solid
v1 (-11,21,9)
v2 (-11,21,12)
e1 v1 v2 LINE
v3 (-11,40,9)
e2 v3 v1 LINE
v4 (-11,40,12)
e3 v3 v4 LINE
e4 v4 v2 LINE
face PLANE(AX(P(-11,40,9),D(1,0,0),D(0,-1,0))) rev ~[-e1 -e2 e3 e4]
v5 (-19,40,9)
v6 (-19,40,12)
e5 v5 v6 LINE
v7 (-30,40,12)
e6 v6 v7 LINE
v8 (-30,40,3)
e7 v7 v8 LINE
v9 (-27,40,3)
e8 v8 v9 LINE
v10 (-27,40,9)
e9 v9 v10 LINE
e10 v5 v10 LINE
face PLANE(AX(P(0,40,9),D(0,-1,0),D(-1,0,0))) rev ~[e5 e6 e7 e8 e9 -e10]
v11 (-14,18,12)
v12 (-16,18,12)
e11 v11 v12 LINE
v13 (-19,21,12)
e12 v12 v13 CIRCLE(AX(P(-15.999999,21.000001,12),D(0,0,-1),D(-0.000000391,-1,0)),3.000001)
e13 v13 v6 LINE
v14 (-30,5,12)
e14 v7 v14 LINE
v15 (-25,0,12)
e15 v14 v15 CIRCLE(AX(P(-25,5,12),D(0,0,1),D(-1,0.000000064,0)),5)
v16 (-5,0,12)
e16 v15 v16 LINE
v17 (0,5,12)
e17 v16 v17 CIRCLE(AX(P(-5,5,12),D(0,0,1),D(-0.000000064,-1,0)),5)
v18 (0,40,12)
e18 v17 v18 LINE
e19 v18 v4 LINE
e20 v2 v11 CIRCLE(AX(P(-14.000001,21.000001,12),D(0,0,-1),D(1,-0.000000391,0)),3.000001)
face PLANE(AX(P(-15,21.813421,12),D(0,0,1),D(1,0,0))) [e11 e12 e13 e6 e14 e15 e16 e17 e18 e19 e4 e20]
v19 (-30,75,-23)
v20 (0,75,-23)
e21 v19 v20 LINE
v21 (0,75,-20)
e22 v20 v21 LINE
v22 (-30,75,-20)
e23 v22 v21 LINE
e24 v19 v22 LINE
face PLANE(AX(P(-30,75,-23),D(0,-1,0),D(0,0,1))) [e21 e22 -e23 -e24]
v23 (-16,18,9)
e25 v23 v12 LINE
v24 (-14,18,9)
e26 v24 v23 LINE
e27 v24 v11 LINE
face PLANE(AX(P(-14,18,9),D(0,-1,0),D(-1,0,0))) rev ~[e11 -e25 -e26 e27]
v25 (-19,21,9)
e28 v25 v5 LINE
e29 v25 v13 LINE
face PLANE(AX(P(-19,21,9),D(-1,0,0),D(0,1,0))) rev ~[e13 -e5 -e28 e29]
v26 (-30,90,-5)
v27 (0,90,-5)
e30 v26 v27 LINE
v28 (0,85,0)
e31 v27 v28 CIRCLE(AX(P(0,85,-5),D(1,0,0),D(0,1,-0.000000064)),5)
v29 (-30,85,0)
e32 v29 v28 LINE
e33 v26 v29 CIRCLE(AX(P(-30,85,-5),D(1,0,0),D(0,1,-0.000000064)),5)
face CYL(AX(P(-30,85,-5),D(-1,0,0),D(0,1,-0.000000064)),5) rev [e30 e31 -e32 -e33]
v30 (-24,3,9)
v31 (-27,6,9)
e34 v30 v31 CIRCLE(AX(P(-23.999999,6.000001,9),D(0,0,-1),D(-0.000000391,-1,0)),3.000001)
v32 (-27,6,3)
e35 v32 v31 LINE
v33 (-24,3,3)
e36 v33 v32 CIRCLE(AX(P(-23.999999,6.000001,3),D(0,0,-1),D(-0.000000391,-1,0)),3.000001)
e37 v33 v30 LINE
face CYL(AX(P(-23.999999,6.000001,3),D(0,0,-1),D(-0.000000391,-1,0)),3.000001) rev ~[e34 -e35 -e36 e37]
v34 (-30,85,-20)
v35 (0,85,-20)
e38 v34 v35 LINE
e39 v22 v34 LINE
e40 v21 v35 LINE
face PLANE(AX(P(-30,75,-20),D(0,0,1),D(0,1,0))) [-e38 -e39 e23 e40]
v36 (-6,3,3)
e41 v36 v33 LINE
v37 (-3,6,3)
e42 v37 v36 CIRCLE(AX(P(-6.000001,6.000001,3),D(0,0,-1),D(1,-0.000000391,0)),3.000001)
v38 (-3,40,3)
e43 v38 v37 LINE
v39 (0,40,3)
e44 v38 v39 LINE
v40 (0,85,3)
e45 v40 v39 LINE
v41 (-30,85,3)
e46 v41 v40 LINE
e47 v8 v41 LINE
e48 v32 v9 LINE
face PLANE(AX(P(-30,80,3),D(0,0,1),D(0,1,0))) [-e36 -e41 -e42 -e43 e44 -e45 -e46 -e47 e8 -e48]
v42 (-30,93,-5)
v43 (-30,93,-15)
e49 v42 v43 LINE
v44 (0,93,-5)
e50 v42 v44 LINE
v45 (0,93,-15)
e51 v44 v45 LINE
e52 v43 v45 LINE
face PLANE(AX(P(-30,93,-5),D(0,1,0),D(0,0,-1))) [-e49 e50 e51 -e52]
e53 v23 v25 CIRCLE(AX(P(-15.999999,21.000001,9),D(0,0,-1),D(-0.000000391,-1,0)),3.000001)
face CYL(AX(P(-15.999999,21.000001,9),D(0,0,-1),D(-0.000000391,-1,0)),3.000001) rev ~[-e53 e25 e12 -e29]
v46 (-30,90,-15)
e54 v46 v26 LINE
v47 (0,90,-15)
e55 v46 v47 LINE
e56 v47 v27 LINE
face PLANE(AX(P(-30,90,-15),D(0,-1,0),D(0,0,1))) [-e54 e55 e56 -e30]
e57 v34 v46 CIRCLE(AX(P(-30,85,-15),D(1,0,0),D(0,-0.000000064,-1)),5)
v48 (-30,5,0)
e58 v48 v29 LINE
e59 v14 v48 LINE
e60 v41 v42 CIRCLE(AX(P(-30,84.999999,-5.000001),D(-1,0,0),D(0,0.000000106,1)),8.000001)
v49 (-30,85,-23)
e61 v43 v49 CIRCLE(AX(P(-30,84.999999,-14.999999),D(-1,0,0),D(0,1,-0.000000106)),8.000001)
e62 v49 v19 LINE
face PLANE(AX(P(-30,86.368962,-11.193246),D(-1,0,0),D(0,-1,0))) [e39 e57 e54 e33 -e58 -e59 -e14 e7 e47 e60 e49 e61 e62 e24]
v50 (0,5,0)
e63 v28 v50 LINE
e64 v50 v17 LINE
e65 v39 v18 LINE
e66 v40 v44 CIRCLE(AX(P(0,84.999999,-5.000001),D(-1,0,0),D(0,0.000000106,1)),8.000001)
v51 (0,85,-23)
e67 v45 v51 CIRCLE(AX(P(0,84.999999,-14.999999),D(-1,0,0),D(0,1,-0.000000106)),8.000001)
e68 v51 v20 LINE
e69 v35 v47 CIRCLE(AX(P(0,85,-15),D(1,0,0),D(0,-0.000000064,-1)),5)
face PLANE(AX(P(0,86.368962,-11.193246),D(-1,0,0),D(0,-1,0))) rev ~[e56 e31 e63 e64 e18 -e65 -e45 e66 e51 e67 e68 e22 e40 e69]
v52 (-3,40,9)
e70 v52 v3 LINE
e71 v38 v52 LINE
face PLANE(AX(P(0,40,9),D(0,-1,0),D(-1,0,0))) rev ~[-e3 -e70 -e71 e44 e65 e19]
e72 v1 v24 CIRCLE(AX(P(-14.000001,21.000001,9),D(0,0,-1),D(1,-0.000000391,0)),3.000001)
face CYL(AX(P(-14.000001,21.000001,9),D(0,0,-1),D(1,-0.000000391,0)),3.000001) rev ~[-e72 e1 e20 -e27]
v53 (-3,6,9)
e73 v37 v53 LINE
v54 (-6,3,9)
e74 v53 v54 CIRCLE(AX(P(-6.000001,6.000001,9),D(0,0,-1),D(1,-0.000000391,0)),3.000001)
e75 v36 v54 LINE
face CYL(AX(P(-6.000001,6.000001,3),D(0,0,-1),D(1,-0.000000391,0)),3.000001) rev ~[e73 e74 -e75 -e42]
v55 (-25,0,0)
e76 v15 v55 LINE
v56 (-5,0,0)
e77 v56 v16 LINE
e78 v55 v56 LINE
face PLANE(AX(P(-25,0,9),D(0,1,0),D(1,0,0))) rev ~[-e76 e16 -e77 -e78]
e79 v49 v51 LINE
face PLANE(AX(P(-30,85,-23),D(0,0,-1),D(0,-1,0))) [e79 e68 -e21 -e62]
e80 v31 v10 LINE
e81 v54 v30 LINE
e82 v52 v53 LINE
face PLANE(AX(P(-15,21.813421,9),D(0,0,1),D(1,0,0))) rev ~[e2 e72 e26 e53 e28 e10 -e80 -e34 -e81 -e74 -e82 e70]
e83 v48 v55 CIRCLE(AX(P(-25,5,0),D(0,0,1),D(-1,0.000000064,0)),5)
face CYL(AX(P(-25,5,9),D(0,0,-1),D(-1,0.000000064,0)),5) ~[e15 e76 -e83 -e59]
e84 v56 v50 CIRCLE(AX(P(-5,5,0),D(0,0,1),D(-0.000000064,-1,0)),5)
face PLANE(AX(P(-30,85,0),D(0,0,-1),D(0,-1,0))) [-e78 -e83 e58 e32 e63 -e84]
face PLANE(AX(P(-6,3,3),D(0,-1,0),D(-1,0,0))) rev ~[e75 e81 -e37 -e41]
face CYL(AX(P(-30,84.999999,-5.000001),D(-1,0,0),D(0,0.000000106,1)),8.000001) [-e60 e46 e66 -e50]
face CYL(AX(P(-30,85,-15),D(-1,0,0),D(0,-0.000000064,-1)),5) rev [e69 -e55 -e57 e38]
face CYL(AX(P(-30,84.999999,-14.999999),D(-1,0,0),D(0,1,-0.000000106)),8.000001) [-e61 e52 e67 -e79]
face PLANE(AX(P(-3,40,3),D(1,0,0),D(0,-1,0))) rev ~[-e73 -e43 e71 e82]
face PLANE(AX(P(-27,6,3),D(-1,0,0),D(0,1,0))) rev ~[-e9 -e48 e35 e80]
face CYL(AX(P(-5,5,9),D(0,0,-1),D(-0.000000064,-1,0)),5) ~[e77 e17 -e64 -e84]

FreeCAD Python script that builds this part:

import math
import FreeCAD as App
import Part
import Sketcher
Q = App.Units.Quantity


def add_polygon(sketch, points):
    """Adds a closed chain of lines whose ends are joined by coincident constraints."""
    first, n = sketch.GeometryCount, len(points)
    for a, b in zip(points, points[1:] + points[:1]):
        sketch.addGeometry(Part.LineSegment(App.Vector(*a, 0), App.Vector(*b, 0)), False)
    for i in range(n):
        sketch.addConstraint(Sketcher.Constraint("Coincident", first + i, 2, first + (i + 1) % n, 1))

doc = App.newDocument("Part")
body = doc.addObject("PartDesign::Body", "Body")

# Sketch on XY plane
sketch1 = doc.addObject("Sketcher::SketchObject", "Sketch")
body.addObject(sketch1)
sketch1.AttachmentSupport = (doc.XY_Plane, [""])
sketch1.MapMode = "FlatFace"
sketch1.addGeometry([
    Part.LineSegment(App.Vector(-25, 0, 0), App.Vector(-5, 0, 0)),  # 0
    Part.ArcOfCircle(Part.Circle(App.Vector(-5, 5, 0), App.Vector(0, 0, 1), 5), math.radians(-90), math.radians(0)),  # 1
    Part.LineSegment(App.Vector(0, 5, 0), App.Vector(0, 40, 0)),  # 2
    Part.LineSegment(App.Vector(0, 40, 0), App.Vector(-30, 40, 0)),  # 3
    Part.LineSegment(App.Vector(-30, 40, 0), App.Vector(-30, 5, 0)),  # 4
    Part.ArcOfCircle(Part.Circle(App.Vector(-25, 5, 0), App.Vector(0, 0, 1), 5), math.radians(180), math.radians(270)),  # 5
], False)
sketch1.addConstraint([
    Sketcher.Constraint("Tangent", 0, 2, 1, 1),
    Sketcher.Constraint("Tangent", 1, 2, 2, 1),
    Sketcher.Constraint("Coincident", 2, 2, 3, 1),
    Sketcher.Constraint("Coincident", 3, 2, 4, 1),
    Sketcher.Constraint("Tangent", 4, 2, 5, 1),
    Sketcher.Constraint("Tangent", 5, 2, 0, 1),
    Sketcher.Constraint("Horizontal", 0),
    Sketcher.Constraint("Vertical", 2),
    Sketcher.Constraint("Horizontal", 3),
    Sketcher.Constraint("Vertical", 4),
    Sketcher.Constraint("Equal", 1, 5),
    Sketcher.Constraint("PointOnObject", 0, 2, -1),
    Sketcher.Constraint("PointOnObject", 1, 2, -2),
    Sketcher.Constraint("Radius", 1, Q("5 mm")),
    Sketcher.Constraint("DistanceX", 0, 1, 0, 2, Q("20 mm")),
    Sketcher.Constraint("DistanceY", 2, 1, 2, 2, Q("35 mm")),
])
pad1 = doc.addObject("PartDesign::Pad", "Pad")
body.addObject(pad1)
pad1.Profile = sketch1
pad1.Length = 3

# Sketch on XY plane
sketch2 = doc.addObject("Sketcher::SketchObject", "Sketch001")
body.addObject(sketch2)
sketch2.AttachmentSupport = (doc.XY_Plane, [""])
sketch2.MapMode = "FlatFace"
sketch2.AttachmentOffset = App.Placement(App.Vector(0, 0, 3), App.Rotation())
sketch2.addGeometry([
    Part.ArcOfCircle(Part.Circle(App.Vector(-24, 6, 0), App.Vector(0, 0, 1), 3), math.radians(-180), math.radians(-90)),  # 0
    Part.LineSegment(App.Vector(-27, 6, 0), App.Vector(-27, 40, 0)),  # 1
    Part.LineSegment(App.Vector(-27, 40, 0), App.Vector(-30, 40, 0)),  # 2
    Part.LineSegment(App.Vector(-30, 40, 0), App.Vector(-30, 5, 0)),  # 3
    Part.ArcOfCircle(Part.Circle(App.Vector(-25, 5, 0), App.Vector(0, 0, 1), 5), math.radians(180), math.radians(270)),  # 4
    Part.LineSegment(App.Vector(-25, 0, 0), App.Vector(-5, 0, 0)),  # 5
    Part.ArcOfCircle(Part.Circle(App.Vector(-5, 5, 0), App.Vector(0, 0, 1), 5), math.radians(-90), math.radians(0)),  # 6
    Part.LineSegment(App.Vector(0, 5, 0), App.Vector(0, 40, 0)),  # 7
    Part.LineSegment(App.Vector(0, 40, 0), App.Vector(-3, 40, 0)),  # 8
    Part.LineSegment(App.Vector(-3, 40, 0), App.Vector(-3, 6, 0)),  # 9
    Part.ArcOfCircle(Part.Circle(App.Vector(-6, 6, 0), App.Vector(0, 0, 1), 3), math.radians(-90), math.radians(0)),  # 10
    Part.LineSegment(App.Vector(-6, 3, 0), App.Vector(-24, 3, 0)),  # 11
], False)
sketch2.addConstraint([
    Sketcher.Constraint("Tangent", 0, 1, 1, 1),
    Sketcher.Constraint("Coincident", 1, 2, 2, 1),
    Sketcher.Constraint("Coincident", 2, 2, 3, 1),
    Sketcher.Constraint("Tangent", 3, 2, 4, 1),
    Sketcher.Constraint("Tangent", 4, 2, 5, 1),
    Sketcher.Constraint("Tangent", 5, 2, 6, 1),
    Sketcher.Constraint("Tangent", 6, 2, 7, 1),
    Sketcher.Constraint("Coincident", 7, 2, 8, 1),
    Sketcher.Constraint("Coincident", 8, 2, 9, 1),
    Sketcher.Constraint("Tangent", 9, 2, 10, 2),
    Sketcher.Constraint("Tangent", 10, 1, 11, 1),
    Sketcher.Constraint("Tangent", 11, 2, 0, 2),
    Sketcher.Constraint("Vertical", 1),
    Sketcher.Constraint("Horizontal", 2),
    Sketcher.Constraint("Vertical", 3),
    Sketcher.Constraint("Horizontal", 5),
    Sketcher.Constraint("Vertical", 7),
    Sketcher.Constraint("Horizontal", 8),
    Sketcher.Constraint("Vertical", 9),
    Sketcher.Constraint("Horizontal", 11),
    Sketcher.Constraint("Equal", 4, 6),
    Sketcher.Constraint("Equal", 0, 10),
    Sketcher.Constraint("PointOnObject", 4, 2, -1),
    Sketcher.Constraint("PointOnObject", 6, 2, -2),
    Sketcher.Constraint("Horizontal", 2, 2, 7, 2),
    Sketcher.Constraint("Equal", 2, 8),
    Sketcher.Constraint("Radius", 0, Q("3.000001 mm")),
    Sketcher.Constraint("Radius", 4, Q("5 mm")),
    Sketcher.Constraint("DistanceX", 2, 2, 2, 1, Q("3 mm")),
    Sketcher.Constraint("DistanceX", 5, 1, 5, 2, Q("20 mm")),
    Sketcher.Constraint("DistanceY", 1, 1, 1, 2, Q("34 mm")),
    Sketcher.Constraint("DistanceY", 3, 2, 3, 1, Q("35 mm")),
])
pad2 = doc.addObject("PartDesign::Pad", "Pad001")
body.addObject(pad2)
pad2.Profile = sketch2
pad2.Length = 6

# Sketch on XY plane
sketch3 = doc.addObject("Sketcher::SketchObject", "Sketch002")
body.addObject(sketch3)
sketch3.AttachmentSupport = (doc.XY_Plane, [""])
sketch3.MapMode = "FlatFace"
sketch3.AttachmentOffset = App.Placement(App.Vector(0, 0, 9), App.Rotation())
sketch3.addGeometry([
    Part.LineSegment(App.Vector(-25, 0, 0), App.Vector(-5, 0, 0)),  # 0
    Part.ArcOfCircle(Part.Circle(App.Vector(-5, 5, 0), App.Vector(0, 0, 1), 5), math.radians(-90), math.radians(0)),  # 1
    Part.LineSegment(App.Vector(0, 5, 0), App.Vector(0, 40, 0)),  # 2
    Part.LineSegment(App.Vector(0, 40, 0), App.Vector(-11, 40, 0)),  # 3
    Part.LineSegment(App.Vector(-11, 40, 0), App.Vector(-11, 21, 0)),  # 4
    Part.ArcOfCircle(Part.Circle(App.Vector(-14, 21, 0), App.Vector(0, 0, 1), 3), math.radians(-90), math.radians(0)),  # 5
    Part.LineSegment(App.Vector(-14, 18, 0), App.Vector(-16, 18, 0)),  # 6
    Part.ArcOfCircle(Part.Circle(App.Vector(-16, 21, 0), App.Vector(0, 0, 1), 3), math.radians(-180), math.radians(-90)),  # 7
    Part.LineSegment(App.Vector(-19, 21, 0), App.Vector(-19, 40, 0)),  # 8
    Part.LineSegment(App.Vector(-19, 40, 0), App.Vector(-30, 40, 0)),  # 9
    Part.LineSegment(App.Vector(-30, 40, 0), App.Vector(-30, 5, 0)),  # 10
    Part.ArcOfCircle(Part.Circle(App.Vector(-25, 5, 0), App.Vector(0, 0, 1), 5), math.radians(180), math.radians(270)),  # 11
], False)
sketch3.addConstraint([
    Sketcher.Constraint("Tangent", 0, 2, 1, 1),
    Sketcher.Constraint("Tangent", 1, 2, 2, 1),
    Sketcher.Constraint("Coincident", 2, 2, 3, 1),
    Sketcher.Constraint("Coincident", 3, 2, 4, 1),
    Sketcher.Constraint("Tangent", 4, 2, 5, 2),
    Sketcher.Constraint("Tangent", 5, 1, 6, 1),
    Sketcher.Constraint("Tangent", 6, 2, 7, 2),
    Sketcher.Constraint("Tangent", 7, 1, 8, 1),
    Sketcher.Constraint("Coincident", 8, 2, 9, 1),
    Sketcher.Constraint("Coincident", 9, 2, 10, 1),
    Sketcher.Constraint("Tangent", 10, 2, 11, 1),
    Sketcher.Constraint("Tangent", 11, 2, 0, 1),
    Sketcher.Constraint("Horizontal", 0),
    Sketcher.Constraint("Vertical", 2),
    Sketcher.Constraint("Horizontal", 3),
    Sketcher.Constraint("Vertical", 4),
    Sketcher.Constraint("Horizontal", 6),
    Sketcher.Constraint("Vertical", 8),
    Sketcher.Constraint("Horizontal", 9),
    Sketcher.Constraint("Vertical", 10),
    Sketcher.Constraint("Equal", 5, 7),
    Sketcher.Constraint("Equal", 1, 11),
    Sketcher.Constraint("PointOnObject", 0, 2, -1),
    Sketcher.Constraint("PointOnObject", 1, 2, -2),
    Sketcher.Constraint("Horizontal", 3, 2, 8, 2),
    Sketcher.Constraint("Equal", 3, 9),
    Sketcher.Constraint("Radius", 1, Q("5 mm")),
    Sketcher.Constraint("Radius", 5, Q("3.000001 mm")),
    Sketcher.Constraint("DistanceX", 0, 1, 0, 2, Q("20 mm")),
    Sketcher.Constraint("DistanceX", 3, 2, 3, 1, Q("11 mm")),
    Sketcher.Constraint("DistanceY", 2, 1, 2, 2, Q("35 mm")),
    Sketcher.Constraint("DistanceY", 4, 2, 4, 1, Q("19 mm")),
])
pad3 = doc.addObject("PartDesign::Pad", "Pad002")
body.addObject(pad3)
pad3.Profile = sketch3
pad3.Length = 3

# Sketch on XZ plane
sketch4 = doc.addObject("Sketcher::SketchObject", "Sketch003")
body.addObject(sketch4)
sketch4.AttachmentSupport = (doc.XZ_Plane, [""])
sketch4.MapMode = "FlatFace"
sketch4.AttachmentOffset = App.Placement(App.Vector(0, 0, -40), App.Rotation())
add_polygon(sketch4, [(0, 0), (-30, 0), (-30, 3), (0, 3)])  # lines 0-3
sketch4.addConstraint([
    Sketcher.Constraint("Horizontal", 0),
    Sketcher.Constraint("Vertical", 1),
    Sketcher.Constraint("Horizontal", 2),
    Sketcher.Constraint("Vertical", 3),
    Sketcher.Constraint("Coincident", 3, 2, -1, 1),
    Sketcher.Constraint("DistanceX", 0, 2, 0, 1, Q("30 mm")),
    Sketcher.Constraint("DistanceY", 1, 1, 1, 2, Q("3 mm")),
])
pad4 = doc.addObject("PartDesign::Pad", "Pad003")
body.addObject(pad4)
pad4.Profile = sketch4
pad4.Length = 40
pad4.Reversed = True

# Sketch on YZ plane
sketch5 = doc.addObject("Sketcher::SketchObject", "Sketch004")
body.addObject(sketch5)
sketch5.AttachmentSupport = (doc.YZ_Plane, [""])
sketch5.MapMode = "FlatFace"
sketch5.AttachmentOffset = App.Placement(App.Vector(0, 0, -30), App.Rotation())
sketch5.addGeometry([
    Part.LineSegment(App.Vector(85, 0, 0), App.Vector(80, 0, 0)),  # 0
    Part.LineSegment(App.Vector(80, 0, 0), App.Vector(80, 3, 0)),  # 1
    Part.LineSegment(App.Vector(80, 3, 0), App.Vector(85, 3, 0)),  # 2
    Part.ArcOfCircle(Part.Circle(App.Vector(85, -5, 0), App.Vector(0, 0, 1), 8), math.radians(0), math.radians(90)),  # 3
    Part.LineSegment(App.Vector(93, -5, 0), App.Vector(93, -15, 0)),  # 4
    Part.ArcOfCircle(Part.Circle(App.Vector(85, -15, 0), App.Vector(0, 0, 1), 8), math.radians(-90), math.radians(0)),  # 5
    Part.LineSegment(App.Vector(85, -23, 0), App.Vector(75, -23, 0)),  # 6
    Part.LineSegment(App.Vector(75, -23, 0), App.Vector(75, -20, 0)),  # 7
    Part.LineSegment(App.Vector(75, -20, 0), App.Vector(85, -20, 0)),  # 8
    Part.ArcOfCircle(Part.Circle(App.Vector(85, -15, 0), App.Vector(0, 0, 1), 5), math.radians(-90), math.radians(0)),  # 9
    Part.LineSegment(App.Vector(90, -15, 0), App.Vector(90, -5, 0)),  # 10
    Part.ArcOfCircle(Part.Circle(App.Vector(85, -5, 0), App.Vector(0, 0, 1), 5), math.radians(0), math.radians(90)),  # 11
], False)
sketch5.addConstraint([
    Sketcher.Constraint("Coincident", 0, 2, 1, 1),
    Sketcher.Constraint("Coincident", 1, 2, 2, 1),
    Sketcher.Constraint("Tangent", 2, 2, 3, 2),
    Sketcher.Constraint("Tangent", 3, 1, 4, 1),
    Sketcher.Constraint("Tangent", 4, 2, 5, 2),
    Sketcher.Constraint("Tangent", 5, 1, 6, 1),
    Sketcher.Constraint("Coincident", 6, 2, 7, 1),
    Sketcher.Constraint("Coincident", 7, 2, 8, 1),
    Sketcher.Constraint("Tangent", 8, 2, 9, 1),
    Sketcher.Constraint("Tangent", 9, 2, 10, 1),
    Sketcher.Constraint("Tangent", 10, 2, 11, 1),
    Sketcher.Constraint("Tangent", 11, 2, 0, 1),
    Sketcher.Constraint("Horizontal", 0),
    Sketcher.Constraint("Vertical", 1),
    Sketcher.Constraint("Horizontal", 2),
    Sketcher.Constraint("Vertical", 4),
    Sketcher.Constraint("Horizontal", 6),
    Sketcher.Constraint("Vertical", 7),
    Sketcher.Constraint("Horizontal", 8),
    Sketcher.Constraint("Vertical", 10),
    Sketcher.Constraint("Coincident", 9, 3, 5, 3),
    Sketcher.Constraint("Coincident", 11, 3, 3, 3),
    Sketcher.Constraint("Equal", 3, 5),
    Sketcher.Constraint("PointOnObject", 0, 2, -1),
    Sketcher.Constraint("Equal", 8, 4),
    Sketcher.Constraint("Radius", 3, Q("8.000001 mm")),
    Sketcher.Constraint("Radius", 9, Q("5 mm")),
    Sketcher.Constraint("DistanceX", 0, 2, 0, 1, Q("5 mm")),
    Sketcher.Constraint("DistanceX", 6, 2, 6, 1, Q("10 mm")),
    Sketcher.Constraint("DistanceX", -1, 1, 3, 3, Q("84.999999 mm")),
])
pad5 = doc.addObject("PartDesign::Pad", "Pad004")
body.addObject(pad5)
pad5.Profile = sketch5
pad5.Length = 30

doc.recompute()
